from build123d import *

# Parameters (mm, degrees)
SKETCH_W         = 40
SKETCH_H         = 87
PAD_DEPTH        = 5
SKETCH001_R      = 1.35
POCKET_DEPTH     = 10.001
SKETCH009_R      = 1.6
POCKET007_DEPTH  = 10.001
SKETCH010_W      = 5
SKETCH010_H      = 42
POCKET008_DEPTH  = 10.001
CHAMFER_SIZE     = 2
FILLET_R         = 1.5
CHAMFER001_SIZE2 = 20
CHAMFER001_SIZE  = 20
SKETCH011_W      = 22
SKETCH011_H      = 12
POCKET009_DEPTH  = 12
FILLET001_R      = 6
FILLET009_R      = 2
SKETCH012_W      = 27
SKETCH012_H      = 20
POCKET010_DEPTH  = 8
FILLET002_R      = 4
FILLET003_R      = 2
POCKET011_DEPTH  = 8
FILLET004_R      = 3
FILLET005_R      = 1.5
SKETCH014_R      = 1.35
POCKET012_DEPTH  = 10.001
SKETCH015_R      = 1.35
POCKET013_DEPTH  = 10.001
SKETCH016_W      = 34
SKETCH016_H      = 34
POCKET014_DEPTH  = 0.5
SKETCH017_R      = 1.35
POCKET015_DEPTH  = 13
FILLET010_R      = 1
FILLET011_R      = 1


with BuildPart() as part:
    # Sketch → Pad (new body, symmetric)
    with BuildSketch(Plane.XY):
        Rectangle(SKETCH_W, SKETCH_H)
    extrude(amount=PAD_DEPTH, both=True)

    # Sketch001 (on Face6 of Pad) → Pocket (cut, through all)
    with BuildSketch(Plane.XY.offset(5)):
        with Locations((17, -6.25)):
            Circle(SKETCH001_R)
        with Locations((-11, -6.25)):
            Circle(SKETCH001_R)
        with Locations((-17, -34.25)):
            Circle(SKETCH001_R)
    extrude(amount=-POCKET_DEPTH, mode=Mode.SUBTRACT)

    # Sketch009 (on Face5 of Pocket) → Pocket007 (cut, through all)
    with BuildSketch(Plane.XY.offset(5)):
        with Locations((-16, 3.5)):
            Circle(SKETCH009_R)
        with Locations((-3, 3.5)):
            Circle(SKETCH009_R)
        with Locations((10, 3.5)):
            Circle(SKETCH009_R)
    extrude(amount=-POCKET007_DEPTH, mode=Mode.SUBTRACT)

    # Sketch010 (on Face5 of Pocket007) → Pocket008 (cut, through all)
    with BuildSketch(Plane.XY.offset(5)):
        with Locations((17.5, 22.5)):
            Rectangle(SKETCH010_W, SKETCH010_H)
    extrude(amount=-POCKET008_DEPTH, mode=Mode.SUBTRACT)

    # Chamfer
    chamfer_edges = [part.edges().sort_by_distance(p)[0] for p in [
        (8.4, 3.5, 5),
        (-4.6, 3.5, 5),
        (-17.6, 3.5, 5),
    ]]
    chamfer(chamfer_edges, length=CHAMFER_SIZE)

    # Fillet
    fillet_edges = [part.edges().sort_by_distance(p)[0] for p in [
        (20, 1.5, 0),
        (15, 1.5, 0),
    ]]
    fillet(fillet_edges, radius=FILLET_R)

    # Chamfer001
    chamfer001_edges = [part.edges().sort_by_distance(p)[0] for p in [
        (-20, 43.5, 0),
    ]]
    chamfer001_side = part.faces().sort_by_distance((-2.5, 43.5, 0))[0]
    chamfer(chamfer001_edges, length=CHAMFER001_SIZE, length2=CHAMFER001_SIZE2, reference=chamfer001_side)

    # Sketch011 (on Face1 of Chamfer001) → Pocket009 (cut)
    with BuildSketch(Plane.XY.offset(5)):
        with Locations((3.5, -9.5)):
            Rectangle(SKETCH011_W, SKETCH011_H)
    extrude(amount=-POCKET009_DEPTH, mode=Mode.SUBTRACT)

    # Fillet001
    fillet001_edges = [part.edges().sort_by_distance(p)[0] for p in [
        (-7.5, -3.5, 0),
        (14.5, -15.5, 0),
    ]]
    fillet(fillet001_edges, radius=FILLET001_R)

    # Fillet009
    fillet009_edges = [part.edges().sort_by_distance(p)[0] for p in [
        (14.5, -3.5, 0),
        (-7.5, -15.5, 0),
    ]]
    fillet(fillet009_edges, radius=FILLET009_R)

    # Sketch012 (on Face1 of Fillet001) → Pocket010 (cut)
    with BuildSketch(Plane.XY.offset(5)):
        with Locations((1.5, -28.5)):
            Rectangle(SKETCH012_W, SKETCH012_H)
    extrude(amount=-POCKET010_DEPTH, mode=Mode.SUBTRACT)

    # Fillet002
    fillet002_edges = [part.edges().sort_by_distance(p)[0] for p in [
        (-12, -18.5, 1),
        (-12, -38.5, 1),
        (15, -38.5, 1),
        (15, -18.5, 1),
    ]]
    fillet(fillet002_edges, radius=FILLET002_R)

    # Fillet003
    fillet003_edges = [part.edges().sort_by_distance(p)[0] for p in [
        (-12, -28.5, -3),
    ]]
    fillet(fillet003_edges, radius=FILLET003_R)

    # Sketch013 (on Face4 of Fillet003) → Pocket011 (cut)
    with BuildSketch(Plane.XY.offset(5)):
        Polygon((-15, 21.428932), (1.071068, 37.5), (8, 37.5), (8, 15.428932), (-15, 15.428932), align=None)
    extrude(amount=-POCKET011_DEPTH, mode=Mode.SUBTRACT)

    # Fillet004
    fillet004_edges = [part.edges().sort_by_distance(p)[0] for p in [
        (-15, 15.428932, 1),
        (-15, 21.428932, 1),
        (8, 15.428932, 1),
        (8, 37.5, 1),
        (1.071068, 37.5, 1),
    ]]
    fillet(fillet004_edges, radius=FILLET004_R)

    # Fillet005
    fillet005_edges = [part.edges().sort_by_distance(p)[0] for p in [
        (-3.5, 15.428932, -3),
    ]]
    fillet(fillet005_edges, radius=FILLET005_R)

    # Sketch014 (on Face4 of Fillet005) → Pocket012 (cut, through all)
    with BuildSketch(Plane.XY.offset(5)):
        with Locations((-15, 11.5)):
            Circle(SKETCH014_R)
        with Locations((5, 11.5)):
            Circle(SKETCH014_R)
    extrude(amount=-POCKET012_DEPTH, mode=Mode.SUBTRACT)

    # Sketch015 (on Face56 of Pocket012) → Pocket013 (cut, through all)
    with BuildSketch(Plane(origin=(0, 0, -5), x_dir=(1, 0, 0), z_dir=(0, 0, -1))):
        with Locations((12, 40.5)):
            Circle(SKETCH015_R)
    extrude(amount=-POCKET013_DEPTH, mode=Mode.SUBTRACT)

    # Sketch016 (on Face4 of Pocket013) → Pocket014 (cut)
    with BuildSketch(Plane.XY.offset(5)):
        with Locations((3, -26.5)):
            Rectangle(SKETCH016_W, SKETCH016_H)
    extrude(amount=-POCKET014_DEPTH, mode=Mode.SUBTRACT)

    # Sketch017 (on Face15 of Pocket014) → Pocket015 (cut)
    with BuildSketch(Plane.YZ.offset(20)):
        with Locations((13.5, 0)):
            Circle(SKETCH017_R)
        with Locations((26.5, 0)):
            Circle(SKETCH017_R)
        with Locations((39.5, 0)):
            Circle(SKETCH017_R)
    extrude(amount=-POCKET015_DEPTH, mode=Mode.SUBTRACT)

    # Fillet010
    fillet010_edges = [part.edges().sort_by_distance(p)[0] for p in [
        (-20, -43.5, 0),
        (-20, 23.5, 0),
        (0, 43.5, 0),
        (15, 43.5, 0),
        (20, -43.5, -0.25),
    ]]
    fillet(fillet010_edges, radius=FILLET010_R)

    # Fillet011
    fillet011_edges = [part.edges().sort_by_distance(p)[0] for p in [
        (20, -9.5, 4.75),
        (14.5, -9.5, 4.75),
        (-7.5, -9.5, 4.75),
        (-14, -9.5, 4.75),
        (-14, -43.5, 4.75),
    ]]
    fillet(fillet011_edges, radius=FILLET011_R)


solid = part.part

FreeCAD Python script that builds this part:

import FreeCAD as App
import Part
import Sketcher
from FreeCAD import Vector
Q = App.Units.Quantity


def edges_at(feature, points):
    """Names of the edges that pass closest to the given points."""
    edges = feature.Shape.Edges
    near = lambda p: min(range(len(edges)), key=lambda i: edges[i].distToShape(Part.Vertex(*p))[0])
    return sorted({f"Edge{near(p) + 1}" for p in points})


def add_polygon(sketch, points):
    """Adds a closed chain of lines whose ends are joined by coincident constraints."""
    first, n = sketch.GeometryCount, len(points)
    for a, b in zip(points, points[1:] + points[:1]):
        sketch.addGeometry(Part.LineSegment(App.Vector(*a, 0), App.Vector(*b, 0)), False)
    for i in range(n):
        sketch.addConstraint(Sketcher.Constraint("Coincident", first + i, 2, first + (i + 1) % n, 1))

doc = App.newDocument("Part")
body = doc.addObject("PartDesign::Body", "Body")

sketch1 = body.newObject("Sketcher::SketchObject", "Sketch")
sketch1.AttachmentSupport = (doc.getObject("XY_Plane"), [""])
sketch1.MapMode = "FlatFace"
add_polygon(sketch1, [(-20, 44), (-20, -44), (20, -44), (20, 44)])
sketch1.addConstraint([
    Sketcher.Constraint("Vertical", 0),
    Sketcher.Constraint("Horizontal", 1),
    Sketcher.Constraint("Vertical", 2),
    Sketcher.Constraint("Horizontal", 3),
    Sketcher.Constraint("Symmetric", 0, 2, 2, 2, -1, 1),
    Sketcher.Constraint("DistanceX", 1, 1, 1, 2, 40.0),
    Sketcher.Constraint("DistanceY", 0, 2, 0, 1, 87.0),
])
pad1 = body.newObject("PartDesign::Pad", "Pad")
pad1.Profile = sketch1
pad1.Length = 10
pad1.Midplane = True

sketch2 = body.newObject("Sketcher::SketchObject", "Sketch001")
sketch2.AttachmentSupport = (doc.getObject("XY_Plane"), [""])
sketch2.MapMode = "FlatFace"
sketch2.AttachmentOffset = App.Placement(Vector(0, 0, 5), App.Rotation())
sketch2.addGeometry([
    Part.Circle(Vector(17, -6.2, 0), Vector(0, 0, 1), 1.4),
    Part.Circle(Vector(-11, -6.2, 0), Vector(0, 0, 1), 1.4),
    Part.Circle(Vector(-17, -34.2, 0), Vector(0, 0, 1), 1.4),
], False)
sketch2.addConstraint([
    Sketcher.Constraint("Equal", 0, 1),
    Sketcher.Constraint("Equal", 1, 2),
    Sketcher.Constraint("Horizontal", 0, 3, 1, 3),
    Sketcher.Constraint("Diameter", 0, 2.7),
    Sketcher.Constraint("DistanceX", -1, 1, 0, 3, 17.0),
    Sketcher.Constraint("DistanceX", 1, 3, -1, 1, 11.0),
    Sketcher.Constraint("DistanceX", 2, 3, -1, 1, 17.0),
    Sketcher.Constraint("DistanceY", 2, 3, 1, 3, 28.0),
    Sketcher.Constraint("DistanceY", 0, 3, -1, 1, 6.25),
])
pocket1 = body.newObject("PartDesign::Pocket", "Pocket")
pocket1.Profile = sketch2
pocket1.Type = "ThroughAll"

sketch3 = body.newObject("Sketcher::SketchObject", "Sketch002")
sketch3.AttachmentSupport = (doc.getObject("XY_Plane"), [""])
sketch3.MapMode = "FlatFace"
sketch3.AttachmentOffset = App.Placement(Vector(0, 0, 5), App.Rotation())
sketch3.addGeometry([
    Part.Circle(Vector(-16, 3.5, 0), Vector(0, 0, 1), 1.6),
    Part.Circle(Vector(-3, 3.5, 0), Vector(0, 0, 1), 1.6),
    Part.Circle(Vector(10, 3.5, 0), Vector(0, 0, 1), 1.6),
], False)
sketch3.addConstraint([
    Sketcher.Constraint("Equal", 0, 1),
    Sketcher.Constraint("Equal", 1, 2),
    Sketcher.Constraint("Horizontal", 0, 3, 1, 3),
    Sketcher.Constraint("Horizontal", 1, 3, 2, 3),
    Sketcher.Constraint("Diameter", 0, 3.2),
    Sketcher.Constraint("DistanceX", 0, 3, -1, 1, 16.0),
    Sketcher.Constraint("DistanceX", 1, 3, -1, 1, 3.0),
    Sketcher.Constraint("DistanceX", -1, 1, 2, 3, 10.0),
    Sketcher.Constraint("DistanceY", -1, 1, 0, 3, 3.5),
])
pocket2 = body.newObject("PartDesign::Pocket", "Pocket001")
pocket2.Profile = sketch3
pocket2.Type = "ThroughAll"

sketch4 = body.newObject("Sketcher::SketchObject", "Sketch003")
sketch4.AttachmentSupport = (doc.getObject("XY_Plane"), [""])
sketch4.MapMode = "FlatFace"
sketch4.AttachmentOffset = App.Placement(Vector(0, 0, 5), App.Rotation())
add_polygon(sketch4, [(15, 44), (15, 2), (20, 2), (20, 44)])
sketch4.addConstraint([
    Sketcher.Constraint("Vertical", 0),
    Sketcher.Constraint("Horizontal", 1),
    Sketcher.Constraint("Vertical", 2),
    Sketcher.Constraint("Horizontal", 3),
    Sketcher.Constraint("DistanceX", 1, 1, 1, 2, 5.0),
    Sketcher.Constraint("DistanceY", 0, 2, 0, 1, 42.0),
    Sketcher.Constraint("DistanceX", -1, 1, 0, 2, 15.0),
    Sketcher.Constraint("DistanceY", -1, 1, 0, 2, 1.5),
])
pocket3 = body.newObject("PartDesign::Pocket", "Pocket002")
pocket3.Profile = sketch4
pocket3.Type = "ThroughAll"
doc.recompute()

chamfer = body.newObject("PartDesign::Chamfer", "Chamfer")
chamfer.Base = (pocket3, edges_at(pocket3, [(8.4, 3.5, 5), (-4.6, 3.5, 5), (-17.6, 3.5, 5)]))
chamfer.Size = 2
doc.recompute()

fillet = body.newObject("PartDesign::Fillet", "Fillet")
fillet.Base = (chamfer, edges_at(chamfer, [(20, 1.5, 0), (15, 1.5, 0)]))
fillet.Radius = 1.5
doc.recompute()

chamfer2 = body.newObject("PartDesign::Chamfer", "Chamfer001")
chamfer2.Base = (fillet, edges_at(fillet, [(-20, 43.5, 0)]))
chamfer2.ChamferType = "Two distances"
chamfer2.Size = 20
chamfer2.Size2 = 20

sketch5 = body.newObject("Sketcher::SketchObject", "Sketch004")
sketch5.AttachmentSupport = (doc.getObject("XY_Plane"), [""])
sketch5.MapMode = "FlatFace"
sketch5.AttachmentOffset = App.Placement(Vector(0, 0, 5), App.Rotation())
add_polygon(sketch5, [(-8, -4), (-8, -16), (14, -16), (14, -4)])
sketch5.addConstraint([
    Sketcher.Constraint("Vertical", 0),
    Sketcher.Constraint("Horizontal", 1),
    Sketcher.Constraint("Vertical", 2),
    Sketcher.Constraint("Horizontal", 3),
    Sketcher.Constraint("DistanceX", 1, 1, 1, 2, 22.0),
    Sketcher.Constraint("DistanceY", 0, 2, 0, 1, 12.0),
    Sketcher.Constraint("DistanceX", 0, 2, -1, 1, 7.5),
    Sketcher.Constraint("DistanceY", 0, 2, -1, 1, 15.5),
])
pocket4 = body.newObject("PartDesign::Pocket", "Pocket003")
pocket4.Profile = sketch5
pocket4.Length = 12
doc.recompute()

fillet2 = body.newObject("PartDesign::Fillet", "Fillet001")
fillet2.Base = (pocket4, edges_at(pocket4, [(-7.5, -3.5, 0), (14.5, -15.5, 0)]))
fillet2.Radius = 6
doc.recompute()

fillet3 = body.newObject("PartDesign::Fillet", "Fillet002")
fillet3.Base = (fillet2, edges_at(fillet2, [(14.5, -3.5, 0), (-7.5, -15.5, 0)]))
fillet3.Radius = 2

sketch6 = body.newObject("Sketcher::SketchObject", "Sketch005")
sketch6.AttachmentSupport = (doc.getObject("XY_Plane"), [""])
sketch6.MapMode = "FlatFace"
sketch6.AttachmentOffset = App.Placement(Vector(0, 0, 5), App.Rotation())
add_polygon(sketch6, [(-12, -18), (-12, -38), (15, -38), (15, -18)])
sketch6.addConstraint([
    Sketcher.Constraint("Vertical", 0),
    Sketcher.Constraint("Horizontal", 1),
    Sketcher.Constraint("Vertical", 2),
    Sketcher.Constraint("Horizontal", 3),
    Sketcher.Constraint("DistanceX", 1, 1, 1, 2, 27.0),
    Sketcher.Constraint("DistanceY", 0, 2, 0, 1, 20.0),
    Sketcher.Constraint("DistanceX", 0, 2, -1, 1, 12.0),
    Sketcher.Constraint("DistanceY", 0, 2, -1, 1, 38.5),
])
pocket5 = body.newObject("PartDesign::Pocket", "Pocket004")
pocket5.Profile = sketch6
pocket5.Length = 8
doc.recompute()

fillet4 = body.newObject("PartDesign::Fillet", "Fillet003")
fillet4.Base = (pocket5, edges_at(pocket5, [
    (-12, -18.5, 1),
    (-12, -38.5, 1),
    (15, -38.5, 1),
    (15, -18.5, 1),
]))
fillet4.Radius = 4
doc.recompute()

fillet5 = body.newObject("PartDesign::Fillet", "Fillet004")
fillet5.Base = (fillet4, edges_at(fillet4, [(-12, -28.5, -3)]))
fillet5.Radius = 2

sketch7 = body.newObject("Sketcher::SketchObject", "Sketch006")
sketch7.AttachmentSupport = (doc.getObject("XY_Plane"), [""])
sketch7.MapMode = "FlatFace"
sketch7.AttachmentOffset = App.Placement(Vector(0, 0, 5), App.Rotation())
add_polygon(sketch7, [(1, 38), (-15, 21), (-15, 15), (8, 15), (8, 38)])
sketch7.addConstraint([
    Sketcher.Constraint("Vertical", 1),
    Sketcher.Constraint("Horizontal", 2),
    Sketcher.Constraint("Vertical", 3),
    Sketcher.Constraint("Horizontal", 4),
    Sketcher.Constraint("DistanceX", 2, 1, 2, 2, 23.0),
    Sketcher.Constraint("DistanceY", 1, 2, 1, 1, 6.0),
    Sketcher.Constraint("Angle", 0, Q("-135 deg")),
    Sketcher.Constraint("DistanceX", 0, 2, -1, 1, 15.0),
    Sketcher.Constraint("DistanceY", -1, 1, 3, 2, 37.5),
    Sketcher.Constraint("DistanceX", 4, 2, 4, 1, 6.928932),
])
pocket6 = body.newObject("PartDesign::Pocket", "Pocket005")
pocket6.Profile = sketch7
pocket6.Length = 8
doc.recompute()

fillet6 = body.newObject("PartDesign::Fillet", "Fillet005")
fillet6.Base = (pocket6, edges_at(pocket6, [
    (-15, 15.429, 1),
    (-15, 21.429, 1),
    (8, 15.429, 1),
    (8, 37.5, 1),
    (1.071, 37.5, 1),
]))
fillet6.Radius = 3
doc.recompute()

fillet7 = body.newObject("PartDesign::Fillet", "Fillet006")
fillet7.Base = (fillet6, edges_at(fillet6, [(-3.5, 15.429, -3)]))
fillet7.Radius = 1.5

sketch8 = body.newObject("Sketcher::SketchObject", "Sketch007")
sketch8.AttachmentSupport = (doc.getObject("XY_Plane"), [""])
sketch8.MapMode = "FlatFace"
sketch8.AttachmentOffset = App.Placement(Vector(0, 0, 5), App.Rotation())
sketch8.addGeometry([
    Part.Circle(Vector(-15, 11.5, 0), Vector(0, 0, 1), 1.4),
    Part.Circle(Vector(5, 11.5, 0), Vector(0, 0, 1), 1.4),
], False)
sketch8.addConstraint([
    Sketcher.Constraint("Equal", 0, 1),
    Sketcher.Constraint("Horizontal", 0, 3, 1, 3),
    Sketcher.Constraint("Diameter", 0, 2.7),
    Sketcher.Constraint("DistanceX", 0, 3, -1, 1, 15.0),
    Sketcher.Constraint("DistanceX", -1, 1, 1, 3, 5.0),
    Sketcher.Constraint("DistanceY", -1, 1, 0, 3, 11.5),
])
pocket7 = body.newObject("PartDesign::Pocket", "Pocket006")
pocket7.Profile = sketch8
pocket7.Type = "ThroughAll"

sketch9 = body.newObject("Sketcher::SketchObject", "Sketch008")
sketch9.AttachmentSupport = (doc.getObject("XY_Plane"), [""])
sketch9.MapMode = "FlatFace"
sketch9.AttachmentOffset = App.Placement(Vector(0, 0, -5), App.Rotation())
sketch9.addGeometry(Part.Circle(Vector(12, -40.5, 0), Vector(0, 0, 1), 1.4), False)
sketch9.addConstraint([
    Sketcher.Constraint("Diameter", 0, 2.7),
    Sketcher.Constraint("DistanceX", -1, 1, 0, 3, 12.0),
    Sketcher.Constraint("DistanceY", 0, 3, -1, 1, 40.5),
])
pocket8 = body.newObject("PartDesign::Pocket", "Pocket007")
pocket8.Profile = sketch9
pocket8.Type = "ThroughAll"
pocket8.Reversed = True

sketch10 = body.newObject("Sketcher::SketchObject", "Sketch009")
sketch10.AttachmentSupport = (doc.getObject("XY_Plane"), [""])
sketch10.MapMode = "FlatFace"
sketch10.AttachmentOffset = App.Placement(Vector(0, 0, 5), App.Rotation())
add_polygon(sketch10, [(-14, -10), (-14, -44), (20, -44), (20, -10)])
sketch10.addConstraint([
    Sketcher.Constraint("Vertical", 0),
    Sketcher.Constraint("Horizontal", 1),
    Sketcher.Constraint("Vertical", 2),
    Sketcher.Constraint("Horizontal", 3),
    Sketcher.Constraint("Equal", 3, 0),
    Sketcher.Constraint("DistanceX", 1, 1, 1, 2, 34.0),
    Sketcher.Constraint("DistanceX", 0, 2, -1, 1, 14.0),
    Sketcher.Constraint("DistanceY", 0, 2, -1, 1, 43.5),
])
pocket9 = body.newObject("PartDesign::Pocket", "Pocket008")
pocket9.Profile = sketch10
pocket9.Length = 0.5

sketch11 = body.newObject("Sketcher::SketchObject", "Sketch010")
sketch11.AttachmentSupport = (doc.getObject("YZ_Plane"), [""])
sketch11.MapMode = "FlatFace"
sketch11.AttachmentOffset = App.Placement(Vector(0, 0, 20), App.Rotation())
sketch11.addGeometry([
    Part.Circle(Vector(13.5, 0, 0), Vector(0, 0, 1), 1.4),
    Part.Circle(Vector(26.5, 0, 0), Vector(0, 0, 1), 1.4),
    Part.Circle(Vector(39.5, 0, 0), Vector(0, 0, 1), 1.4),
], False)
sketch11.addConstraint([
    Sketcher.Constraint("Equal", 0, 1),
    Sketcher.Constraint("Equal", 1, 2),
    Sketcher.Constraint("PointOnObject", 0, 3, -1),
    Sketcher.Constraint("PointOnObject", 1, 3, -1),
    Sketcher.Constraint("PointOnObject", 2, 3, -1),
    Sketcher.Constraint("Diameter", 0, 2.7),
    Sketcher.Constraint("DistanceX", 0, 3, 1, 3, 13.0),
    Sketcher.Constraint("DistanceX", 1, 3, 2, 3, 13.0),
    Sketcher.Constraint("DistanceX", -1, 1, 0, 3, 13.5),
])
pocket10 = body.newObject("PartDesign::Pocket", "Pocket009")
pocket10.Profile = sketch11
pocket10.Length = 13
doc.recompute()

fillet8 = body.newObject("PartDesign::Fillet", "Fillet007")
fillet8.Base = (pocket10, edges_at(pocket10, [
    (-20, -43.5, 0),
    (-20, 23.5, 0),
    (0, 43.5, 0),
    (15, 43.5, 0),
    (20, -43.5, -0.25),
]))
fillet8.Radius = 1
doc.recompute()

fillet9 = body.newObject("PartDesign::Fillet", "Fillet008")
fillet9.Base = (fillet8, edges_at(fillet8, [
    (20, -9.5, 4.75),
    (14.5, -9.5, 4.75),
    (-7.5, -9.5, 4.75),
    (-14, -9.5, 4.75),
    (-14, -43.5, 4.75),
]))
fillet9.Radius = 1

doc.recompute()
